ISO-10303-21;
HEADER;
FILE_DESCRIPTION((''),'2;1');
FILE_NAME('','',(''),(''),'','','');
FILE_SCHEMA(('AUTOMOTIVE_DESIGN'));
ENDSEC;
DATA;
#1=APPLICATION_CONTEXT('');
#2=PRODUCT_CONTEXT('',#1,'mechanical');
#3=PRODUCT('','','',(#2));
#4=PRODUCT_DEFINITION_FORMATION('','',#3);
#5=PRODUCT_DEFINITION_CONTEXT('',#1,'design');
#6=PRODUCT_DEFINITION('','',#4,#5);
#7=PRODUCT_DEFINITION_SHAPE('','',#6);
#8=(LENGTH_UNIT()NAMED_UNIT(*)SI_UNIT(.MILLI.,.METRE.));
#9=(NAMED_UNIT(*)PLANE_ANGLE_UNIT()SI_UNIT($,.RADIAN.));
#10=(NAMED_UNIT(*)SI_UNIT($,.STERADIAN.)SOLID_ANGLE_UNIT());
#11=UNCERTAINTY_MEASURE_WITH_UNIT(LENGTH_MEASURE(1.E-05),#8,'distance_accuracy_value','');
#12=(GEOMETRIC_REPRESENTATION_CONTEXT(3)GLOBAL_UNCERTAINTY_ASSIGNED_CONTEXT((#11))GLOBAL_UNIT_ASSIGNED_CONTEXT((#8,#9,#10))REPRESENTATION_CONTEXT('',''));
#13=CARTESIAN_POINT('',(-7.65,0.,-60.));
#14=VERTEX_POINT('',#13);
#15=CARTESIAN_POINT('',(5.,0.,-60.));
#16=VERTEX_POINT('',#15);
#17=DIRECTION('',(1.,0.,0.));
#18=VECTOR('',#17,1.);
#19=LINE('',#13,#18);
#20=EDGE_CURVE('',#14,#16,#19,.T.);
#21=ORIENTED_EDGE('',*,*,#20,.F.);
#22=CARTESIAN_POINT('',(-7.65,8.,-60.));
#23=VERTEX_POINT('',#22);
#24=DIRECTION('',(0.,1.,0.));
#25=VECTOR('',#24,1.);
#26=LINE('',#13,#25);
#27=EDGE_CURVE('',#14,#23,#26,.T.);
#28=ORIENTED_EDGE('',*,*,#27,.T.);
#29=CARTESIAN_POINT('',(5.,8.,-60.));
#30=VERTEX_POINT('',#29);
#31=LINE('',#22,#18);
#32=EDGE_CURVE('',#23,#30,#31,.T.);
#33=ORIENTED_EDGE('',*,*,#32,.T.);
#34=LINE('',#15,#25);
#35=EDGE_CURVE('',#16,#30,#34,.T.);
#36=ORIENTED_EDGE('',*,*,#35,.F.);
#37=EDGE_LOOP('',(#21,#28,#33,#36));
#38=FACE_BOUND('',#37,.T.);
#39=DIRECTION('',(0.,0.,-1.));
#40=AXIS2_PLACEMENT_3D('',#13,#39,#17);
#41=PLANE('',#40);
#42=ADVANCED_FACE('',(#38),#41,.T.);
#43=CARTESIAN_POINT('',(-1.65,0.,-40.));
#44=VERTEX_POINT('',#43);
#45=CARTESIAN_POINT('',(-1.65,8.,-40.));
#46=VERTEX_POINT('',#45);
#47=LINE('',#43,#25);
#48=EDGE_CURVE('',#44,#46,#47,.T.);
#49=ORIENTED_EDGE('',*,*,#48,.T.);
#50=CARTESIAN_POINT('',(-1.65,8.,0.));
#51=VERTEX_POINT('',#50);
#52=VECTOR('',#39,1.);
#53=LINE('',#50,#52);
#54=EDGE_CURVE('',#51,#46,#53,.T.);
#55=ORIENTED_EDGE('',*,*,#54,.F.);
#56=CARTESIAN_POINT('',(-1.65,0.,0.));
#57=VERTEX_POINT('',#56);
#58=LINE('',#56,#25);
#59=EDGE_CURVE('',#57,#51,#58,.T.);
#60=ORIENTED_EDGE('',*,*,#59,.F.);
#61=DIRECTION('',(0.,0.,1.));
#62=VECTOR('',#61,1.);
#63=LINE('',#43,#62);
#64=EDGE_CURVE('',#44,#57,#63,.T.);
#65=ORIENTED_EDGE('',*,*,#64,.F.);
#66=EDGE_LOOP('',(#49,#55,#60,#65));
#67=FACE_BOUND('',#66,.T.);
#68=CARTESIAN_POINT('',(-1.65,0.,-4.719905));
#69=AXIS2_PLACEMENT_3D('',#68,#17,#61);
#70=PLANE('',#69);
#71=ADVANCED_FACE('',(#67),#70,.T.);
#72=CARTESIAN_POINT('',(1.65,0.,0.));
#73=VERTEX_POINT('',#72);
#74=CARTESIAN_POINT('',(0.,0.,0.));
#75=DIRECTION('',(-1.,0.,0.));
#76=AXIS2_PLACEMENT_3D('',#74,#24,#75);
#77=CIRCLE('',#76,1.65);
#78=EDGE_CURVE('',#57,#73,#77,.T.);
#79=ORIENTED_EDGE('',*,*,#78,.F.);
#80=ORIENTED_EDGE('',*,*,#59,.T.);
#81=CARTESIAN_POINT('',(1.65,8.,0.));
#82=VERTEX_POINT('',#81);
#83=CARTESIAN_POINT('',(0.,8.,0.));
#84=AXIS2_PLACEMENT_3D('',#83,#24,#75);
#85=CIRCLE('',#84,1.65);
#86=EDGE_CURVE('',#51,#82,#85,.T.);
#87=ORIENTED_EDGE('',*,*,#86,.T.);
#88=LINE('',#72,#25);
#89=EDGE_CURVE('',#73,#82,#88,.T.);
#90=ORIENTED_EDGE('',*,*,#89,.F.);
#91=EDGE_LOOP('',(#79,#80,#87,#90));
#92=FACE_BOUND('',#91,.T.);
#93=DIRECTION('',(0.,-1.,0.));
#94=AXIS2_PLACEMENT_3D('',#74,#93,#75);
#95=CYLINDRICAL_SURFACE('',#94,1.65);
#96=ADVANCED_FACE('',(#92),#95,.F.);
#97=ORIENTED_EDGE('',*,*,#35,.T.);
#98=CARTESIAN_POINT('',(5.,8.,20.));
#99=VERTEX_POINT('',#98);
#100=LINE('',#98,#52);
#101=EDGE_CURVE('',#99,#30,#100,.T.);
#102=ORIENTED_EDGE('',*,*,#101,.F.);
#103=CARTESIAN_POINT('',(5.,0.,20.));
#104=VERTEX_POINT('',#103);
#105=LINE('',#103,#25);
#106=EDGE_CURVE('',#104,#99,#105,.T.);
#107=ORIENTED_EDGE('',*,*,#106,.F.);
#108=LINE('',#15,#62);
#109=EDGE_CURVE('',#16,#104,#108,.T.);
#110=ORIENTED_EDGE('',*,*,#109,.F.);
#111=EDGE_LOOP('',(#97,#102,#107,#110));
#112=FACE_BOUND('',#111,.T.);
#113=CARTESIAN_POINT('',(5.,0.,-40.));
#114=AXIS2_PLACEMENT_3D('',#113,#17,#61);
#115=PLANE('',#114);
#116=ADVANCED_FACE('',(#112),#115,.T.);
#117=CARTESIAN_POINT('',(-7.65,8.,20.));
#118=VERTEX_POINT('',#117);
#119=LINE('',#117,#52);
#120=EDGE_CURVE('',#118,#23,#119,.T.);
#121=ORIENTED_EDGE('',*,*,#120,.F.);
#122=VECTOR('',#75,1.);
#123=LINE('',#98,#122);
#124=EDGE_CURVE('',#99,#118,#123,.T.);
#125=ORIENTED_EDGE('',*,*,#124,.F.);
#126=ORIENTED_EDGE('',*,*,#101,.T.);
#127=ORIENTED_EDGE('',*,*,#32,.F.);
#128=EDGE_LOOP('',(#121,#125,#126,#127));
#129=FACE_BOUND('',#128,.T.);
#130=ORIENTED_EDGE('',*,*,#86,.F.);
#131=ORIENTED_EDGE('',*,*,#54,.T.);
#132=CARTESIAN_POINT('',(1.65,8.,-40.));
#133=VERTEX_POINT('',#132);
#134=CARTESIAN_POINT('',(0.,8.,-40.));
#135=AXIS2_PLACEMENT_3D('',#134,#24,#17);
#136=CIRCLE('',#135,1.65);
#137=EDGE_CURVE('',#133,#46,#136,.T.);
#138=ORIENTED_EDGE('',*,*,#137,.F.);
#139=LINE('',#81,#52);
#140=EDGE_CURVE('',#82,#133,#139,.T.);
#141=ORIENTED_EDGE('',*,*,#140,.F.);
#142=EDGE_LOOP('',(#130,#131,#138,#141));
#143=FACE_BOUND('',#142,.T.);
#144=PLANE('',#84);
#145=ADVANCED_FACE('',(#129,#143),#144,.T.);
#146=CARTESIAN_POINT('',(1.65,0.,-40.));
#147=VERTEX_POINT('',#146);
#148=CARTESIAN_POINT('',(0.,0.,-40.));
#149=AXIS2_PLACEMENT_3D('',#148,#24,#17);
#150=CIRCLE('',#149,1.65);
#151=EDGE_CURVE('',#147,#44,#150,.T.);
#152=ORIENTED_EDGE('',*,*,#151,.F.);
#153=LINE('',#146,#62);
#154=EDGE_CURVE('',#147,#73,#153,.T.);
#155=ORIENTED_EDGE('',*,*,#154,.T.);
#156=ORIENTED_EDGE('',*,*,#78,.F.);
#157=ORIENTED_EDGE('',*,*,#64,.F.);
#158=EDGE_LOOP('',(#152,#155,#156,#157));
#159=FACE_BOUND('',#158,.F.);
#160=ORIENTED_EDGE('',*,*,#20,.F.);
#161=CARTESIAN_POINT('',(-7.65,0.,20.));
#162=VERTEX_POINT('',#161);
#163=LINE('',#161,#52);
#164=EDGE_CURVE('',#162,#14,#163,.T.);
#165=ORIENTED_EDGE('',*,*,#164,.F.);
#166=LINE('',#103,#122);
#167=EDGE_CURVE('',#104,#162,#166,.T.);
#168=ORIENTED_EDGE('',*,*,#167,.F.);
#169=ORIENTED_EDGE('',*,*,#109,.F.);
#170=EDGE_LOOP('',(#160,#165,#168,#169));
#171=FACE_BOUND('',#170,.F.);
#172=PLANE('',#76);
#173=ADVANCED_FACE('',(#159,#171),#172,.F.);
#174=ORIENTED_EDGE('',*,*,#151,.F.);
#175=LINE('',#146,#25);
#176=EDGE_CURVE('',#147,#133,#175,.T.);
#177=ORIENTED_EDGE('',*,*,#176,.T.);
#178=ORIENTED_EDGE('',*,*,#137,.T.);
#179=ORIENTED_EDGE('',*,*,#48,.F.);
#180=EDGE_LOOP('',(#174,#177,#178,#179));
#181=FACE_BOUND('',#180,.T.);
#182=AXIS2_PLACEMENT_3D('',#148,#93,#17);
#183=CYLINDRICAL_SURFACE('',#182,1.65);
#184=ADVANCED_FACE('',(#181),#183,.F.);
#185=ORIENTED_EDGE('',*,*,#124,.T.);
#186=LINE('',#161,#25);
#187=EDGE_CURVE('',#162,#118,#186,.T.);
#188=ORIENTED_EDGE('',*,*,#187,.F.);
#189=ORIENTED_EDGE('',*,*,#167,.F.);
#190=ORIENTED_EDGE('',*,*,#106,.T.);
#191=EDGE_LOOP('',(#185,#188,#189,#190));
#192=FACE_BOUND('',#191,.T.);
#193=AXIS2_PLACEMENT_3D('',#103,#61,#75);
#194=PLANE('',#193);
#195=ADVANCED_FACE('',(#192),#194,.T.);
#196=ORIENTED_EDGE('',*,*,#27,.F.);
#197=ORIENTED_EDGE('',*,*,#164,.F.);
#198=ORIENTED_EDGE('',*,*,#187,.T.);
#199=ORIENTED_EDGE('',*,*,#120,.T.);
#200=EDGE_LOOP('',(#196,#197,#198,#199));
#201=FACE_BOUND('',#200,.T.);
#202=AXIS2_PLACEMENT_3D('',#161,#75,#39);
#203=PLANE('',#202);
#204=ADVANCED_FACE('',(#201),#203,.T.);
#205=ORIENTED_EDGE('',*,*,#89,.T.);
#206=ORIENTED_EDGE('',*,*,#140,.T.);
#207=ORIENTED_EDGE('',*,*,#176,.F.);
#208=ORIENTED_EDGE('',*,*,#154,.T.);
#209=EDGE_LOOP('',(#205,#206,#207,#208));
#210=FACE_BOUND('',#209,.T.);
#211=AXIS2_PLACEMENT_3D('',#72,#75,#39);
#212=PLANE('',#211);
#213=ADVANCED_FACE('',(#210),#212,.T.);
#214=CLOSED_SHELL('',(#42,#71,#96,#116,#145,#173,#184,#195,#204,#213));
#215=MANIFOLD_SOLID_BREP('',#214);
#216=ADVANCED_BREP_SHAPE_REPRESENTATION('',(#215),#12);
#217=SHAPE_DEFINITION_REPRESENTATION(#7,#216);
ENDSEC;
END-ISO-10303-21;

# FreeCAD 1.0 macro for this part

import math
import FreeCAD as App
import Part
import Sketcher
from FreeCAD import Vector

doc = App.newDocument("Part")
body = doc.addObject("PartDesign::Body", "Body")

# Sketch on XZ plane
sketch1 = doc.addObject("Sketcher::SketchObject", "Sketch")
body.addObject(sketch1)
sketch1.AttachmentSupport = (doc.XZ_Plane, [""])
sketch1.MapMode = "FlatFace"
sketch1.addGeometry(Part.LineSegment(Vector(5, -60, 0), Vector(-7.7, -60, 0)), False)
sketch1.addGeometry(Part.LineSegment(Vector(-7.7, -60, 0), Vector(-7.7, 20, 0)), False)
sketch1.addGeometry(Part.LineSegment(Vector(-7.7, 20, 0), Vector(5, 20, 0)), False)
sketch1.addGeometry(Part.LineSegment(Vector(5, 20, 0), Vector(5, -60, 0)), False)
sketch1.addGeometry(Part.ArcOfCircle(Part.Circle(Vector(0, 0, 0), Vector(0, 0, 1), 1.6), math.radians(0), math.radians(180)), False)
sketch1.addGeometry(Part.LineSegment(Vector(-1.6, 0, 0), Vector(-1.6, -40, 0)), False)
sketch1.addGeometry(Part.ArcOfCircle(Part.Circle(Vector(0, -40, 0), Vector(0, 0, 1), 1.6), math.radians(180), math.radians(360)), False)
sketch1.addGeometry(Part.LineSegment(Vector(1.6, -40, 0), Vector(1.6, 0, 0)), False)
sketch1.addConstraint(Sketcher.Constraint("Coincident", 0, 2, 1, 1))
sketch1.addConstraint(Sketcher.Constraint("Coincident", 1, 2, 2, 1))
sketch1.addConstraint(Sketcher.Constraint("Coincident", 2, 2, 3, 1))
sketch1.addConstraint(Sketcher.Constraint("Coincident", 3, 2, 0, 1))
sketch1.addConstraint(Sketcher.Constraint("Tangent", 4, 2, 5, 1))
sketch1.addConstraint(Sketcher.Constraint("Tangent", 5, 2, 6, 1))
sketch1.addConstraint(Sketcher.Constraint("Tangent", 6, 2, 7, 1))
sketch1.addConstraint(Sketcher.Constraint("Tangent", 7, 2, 4, 1))
sketch1.addConstraint(Sketcher.Constraint("Horizontal", 0))
sketch1.addConstraint(Sketcher.Constraint("Vertical", 1))
sketch1.addConstraint(Sketcher.Constraint("Horizontal", 2))
sketch1.addConstraint(Sketcher.Constraint("Vertical", 3))
sketch1.addConstraint(Sketcher.Constraint("Vertical", 5))
sketch1.addConstraint(Sketcher.Constraint("Vertical", 7))
sketch1.addConstraint(Sketcher.Constraint("Coincident", 4, 3, -1, 1))
sketch1.addConstraint(Sketcher.Constraint("DistanceY", 5, 2, 5, 1, 40.0))
sketch1.addConstraint(Sketcher.Constraint("Radius", 4, 1.65))
sketch1.addConstraint(Sketcher.Constraint("DistanceY", -1, 1, 1, 2, 20.0))
sketch1.addConstraint(Sketcher.Constraint("DistanceY", 0, 2, 6, 3, 20.0))
sketch1.addConstraint(Sketcher.Constraint("DistanceX", 1, 2, 4, 2, 6.0))
sketch1.addConstraint(Sketcher.Constraint("DistanceX", -1, 1, 2, 2, 5.0))
pad1 = doc.addObject("PartDesign::Pad", "Pad")
body.addObject(pad1)
pad1.Profile = sketch1
pad1.Length = 8
pad1.Reversed = True

doc.recompute()
